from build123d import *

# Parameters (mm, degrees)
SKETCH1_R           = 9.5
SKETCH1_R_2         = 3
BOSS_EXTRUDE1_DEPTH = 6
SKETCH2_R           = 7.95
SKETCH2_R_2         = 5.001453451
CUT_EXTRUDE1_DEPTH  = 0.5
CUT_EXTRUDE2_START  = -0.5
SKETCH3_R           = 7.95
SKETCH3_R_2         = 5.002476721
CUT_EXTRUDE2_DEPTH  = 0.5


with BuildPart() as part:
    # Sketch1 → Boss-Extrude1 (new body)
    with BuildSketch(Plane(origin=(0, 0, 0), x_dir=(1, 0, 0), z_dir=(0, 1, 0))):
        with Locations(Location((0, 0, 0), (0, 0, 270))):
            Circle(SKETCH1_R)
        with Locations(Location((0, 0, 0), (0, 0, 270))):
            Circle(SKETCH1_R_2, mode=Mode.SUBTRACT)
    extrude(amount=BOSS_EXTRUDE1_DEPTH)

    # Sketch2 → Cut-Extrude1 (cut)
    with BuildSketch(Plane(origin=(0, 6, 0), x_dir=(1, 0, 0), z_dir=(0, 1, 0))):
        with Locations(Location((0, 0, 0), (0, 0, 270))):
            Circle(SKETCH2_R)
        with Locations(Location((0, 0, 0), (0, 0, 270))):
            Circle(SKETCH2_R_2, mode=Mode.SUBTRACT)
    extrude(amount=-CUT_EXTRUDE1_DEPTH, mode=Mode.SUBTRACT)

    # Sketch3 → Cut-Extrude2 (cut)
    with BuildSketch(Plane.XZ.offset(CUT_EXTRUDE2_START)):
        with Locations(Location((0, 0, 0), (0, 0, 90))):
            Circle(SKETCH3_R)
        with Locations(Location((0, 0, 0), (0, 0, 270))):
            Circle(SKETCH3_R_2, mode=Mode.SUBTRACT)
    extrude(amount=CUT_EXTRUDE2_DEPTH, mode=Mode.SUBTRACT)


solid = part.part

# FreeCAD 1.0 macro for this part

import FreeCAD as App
import Part
import Sketcher

V = App.Vector
Q = App.Units.Quantity

doc = App.newDocument("Part")
body = doc.addObject("PartDesign::Body", "Body")

# Sketch on XZ plane
sketch1 = doc.addObject("Sketcher::SketchObject", "Sketch")
body.addObject(sketch1)
sketch1.AttachmentSupport = (doc.XZ_Plane, [""])
sketch1.MapMode = "FlatFace"
sketch1.addGeometry(Part.Circle(V(0, 0, 0), V(0, 0, 1), 9.5), False)
sketch1.addGeometry(Part.Circle(V(0, 0, 0), V(0, 0, 1), 3), False)
sketch1.addConstraint(Sketcher.Constraint("Coincident", 0, 3, -1, 1))
sketch1.addConstraint(Sketcher.Constraint("Coincident", 1, 3, -1, 1))
sketch1.addConstraint(Sketcher.Constraint("Diameter", 0, Q("19 mm")))
sketch1.addConstraint(Sketcher.Constraint("Diameter", 1, Q("6 mm")))
pad1 = doc.addObject("PartDesign::Pad", "Pad")
body.addObject(pad1)
pad1.Profile = sketch1
pad1.Length = 6
pad1.Reversed = True

# Sketch on XZ plane
sketch2 = doc.addObject("Sketcher::SketchObject", "Sketch001")
body.addObject(sketch2)
sketch2.AttachmentSupport = (doc.XZ_Plane, [""])
sketch2.MapMode = "FlatFace"
sketch2.AttachmentOffset = App.Placement(V(0, 0, -6), App.Rotation())
sketch2.addGeometry(Part.Circle(V(0, 0, 0), V(0, 0, 1), 7.95), False)
sketch2.addGeometry(Part.Circle(V(0, 0, 0), V(0, 0, 1), 5.001453), False)
sketch2.addConstraint(Sketcher.Constraint("Coincident", 0, 3, -1, 1))
sketch2.addConstraint(Sketcher.Constraint("Coincident", 1, 3, -1, 1))
sketch2.addConstraint(Sketcher.Constraint("Diameter", 0, Q("15.9 mm")))
sketch2.addConstraint(Sketcher.Constraint("Diameter", 1, Q("10.002907 mm")))
pocket1 = doc.addObject("PartDesign::Pocket", "Pocket")
body.addObject(pocket1)
pocket1.Profile = sketch2
pocket1.Length = 0.5
pocket1.Reversed = True

# Sketch on XZ plane
sketch3 = doc.addObject("Sketcher::SketchObject", "Sketch002")
body.addObject(sketch3)
sketch3.AttachmentSupport = (doc.XZ_Plane, [""])
sketch3.MapMode = "FlatFace"
sketch3.AttachmentOffset = App.Placement(V(0, 0, -0.5), App.Rotation())
sketch3.addGeometry(Part.Circle(V(0, 0, 0), V(0, 0, 1), 7.95), False)
sketch3.addGeometry(Part.Circle(V(0, 0, 0), V(0, 0, 1), 5.002477), False)
sketch3.addConstraint(Sketcher.Constraint("Coincident", 0, 3, -1, 1))
sketch3.addConstraint(Sketcher.Constraint("Coincident", 1, 3, -1, 1))
sketch3.addConstraint(Sketcher.Constraint("Diameter", 0, Q("15.9 mm")))
sketch3.addConstraint(Sketcher.Constraint("Diameter", 1, Q("10.004953 mm")))
pocket2 = doc.addObject("PartDesign::Pocket", "Pocket001")
body.addObject(pocket2)
pocket2.Profile = sketch3
pocket2.Length = 0.5
pocket2.Reversed = True

doc.recompute()
